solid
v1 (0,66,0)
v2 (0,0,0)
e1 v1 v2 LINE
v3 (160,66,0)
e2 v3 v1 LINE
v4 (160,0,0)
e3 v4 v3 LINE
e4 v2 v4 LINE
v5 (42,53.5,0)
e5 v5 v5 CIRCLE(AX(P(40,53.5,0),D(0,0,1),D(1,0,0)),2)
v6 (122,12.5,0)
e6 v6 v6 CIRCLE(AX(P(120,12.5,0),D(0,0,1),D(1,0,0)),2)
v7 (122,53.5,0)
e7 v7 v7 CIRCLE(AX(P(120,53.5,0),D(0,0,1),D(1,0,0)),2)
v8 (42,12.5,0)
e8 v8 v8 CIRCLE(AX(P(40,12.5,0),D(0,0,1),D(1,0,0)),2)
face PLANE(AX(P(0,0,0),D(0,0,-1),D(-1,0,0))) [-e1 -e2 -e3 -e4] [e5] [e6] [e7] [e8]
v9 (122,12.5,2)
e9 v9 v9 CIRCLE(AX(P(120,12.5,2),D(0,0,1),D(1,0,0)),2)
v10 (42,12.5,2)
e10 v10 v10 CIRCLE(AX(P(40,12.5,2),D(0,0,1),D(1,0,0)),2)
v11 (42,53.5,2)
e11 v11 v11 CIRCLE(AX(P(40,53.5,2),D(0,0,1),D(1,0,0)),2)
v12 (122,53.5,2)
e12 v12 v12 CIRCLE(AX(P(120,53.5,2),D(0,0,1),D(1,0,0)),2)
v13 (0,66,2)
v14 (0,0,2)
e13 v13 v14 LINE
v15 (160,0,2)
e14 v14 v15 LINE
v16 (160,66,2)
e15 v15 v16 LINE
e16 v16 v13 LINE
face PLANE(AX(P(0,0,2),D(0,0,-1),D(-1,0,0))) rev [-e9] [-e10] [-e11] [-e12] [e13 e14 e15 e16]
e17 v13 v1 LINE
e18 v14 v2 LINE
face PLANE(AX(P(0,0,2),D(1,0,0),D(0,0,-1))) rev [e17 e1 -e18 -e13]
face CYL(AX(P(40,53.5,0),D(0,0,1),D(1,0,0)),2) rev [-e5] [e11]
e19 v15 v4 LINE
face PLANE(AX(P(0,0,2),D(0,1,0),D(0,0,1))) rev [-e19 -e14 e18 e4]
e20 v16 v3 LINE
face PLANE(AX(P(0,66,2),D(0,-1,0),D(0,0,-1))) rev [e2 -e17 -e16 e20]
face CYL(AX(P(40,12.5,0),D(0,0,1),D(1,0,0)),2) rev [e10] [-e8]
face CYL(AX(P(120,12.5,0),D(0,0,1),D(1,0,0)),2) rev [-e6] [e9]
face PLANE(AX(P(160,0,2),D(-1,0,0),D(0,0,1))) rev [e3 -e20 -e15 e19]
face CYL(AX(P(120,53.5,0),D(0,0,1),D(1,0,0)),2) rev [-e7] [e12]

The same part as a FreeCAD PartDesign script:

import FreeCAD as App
import Part
import Sketcher


def add_polygon(sketch, points):
    """Adds a closed chain of lines whose ends are joined by coincident constraints."""
    first, n = sketch.GeometryCount, len(points)
    for a, b in zip(points, points[1:] + points[:1]):
        sketch.addGeometry(Part.LineSegment(App.Vector(*a, 0), App.Vector(*b, 0)), False)
    for i in range(n):
        sketch.addConstraint(Sketcher.Constraint("Coincident", first + i, 2, first + (i + 1) % n, 1))

doc = App.newDocument("Part")
body = doc.addObject("PartDesign::Body", "Body")

# Sketch on XY plane
sketch1 = body.newObject("Sketcher::SketchObject", "Sketch")
sketch1.AttachmentSupport = (doc.getObject("XY_Plane"), [""])
sketch1.MapMode = "FlatFace"
add_polygon(sketch1, [(0, 66), (0, 0), (160, 0), (160, 66)])  # lines 0-3
sketch1.addConstraint(Sketcher.Constraint("Vertical", 0))
sketch1.addConstraint(Sketcher.Constraint("Horizontal", 1))
sketch1.addConstraint(Sketcher.Constraint("Vertical", 2))
sketch1.addConstraint(Sketcher.Constraint("Horizontal", 3))
sketch1.addConstraint(Sketcher.Constraint("Coincident", 0, 2, -1, 1))
sketch1.addConstraint(Sketcher.Constraint("DistanceX", 1, 1, 1, 2, 160.0))
sketch1.addConstraint(Sketcher.Constraint("DistanceY", 0, 2, 0, 1, 66.0))
pad1 = body.newObject("PartDesign::Pad", "Pad")
pad1.Profile = sketch1
pad1.Length = 2

# Sketch on XY plane
sketch2 = body.newObject("Sketcher::SketchObject", "Sketch001")
sketch2.AttachmentSupport = (doc.getObject("XY_Plane"), [""])
sketch2.MapMode = "FlatFace"
sketch2.AttachmentOffset = App.Placement(App.Vector(0, 0, 2), App.Rotation())
sketch2.addGeometry(Part.Circle(App.Vector(40, 53.5, 0), App.Vector(0, 0, 1), 2), False)
sketch2.addGeometry(Part.Circle(App.Vector(120, 53.5, 0), App.Vector(0, 0, 1), 2), False)
sketch2.addGeometry(Part.Circle(App.Vector(40, 12.5, 0), App.Vector(0, 0, 1), 2), False)
sketch2.addGeometry(Part.Circle(App.Vector(120, 12.5, 0), App.Vector(0, 0, 1), 2), False)
sketch2.addConstraint(Sketcher.Constraint("Equal", 0, 1))
sketch2.addConstraint(Sketcher.Constraint("Equal", 1, 2))
sketch2.addConstraint(Sketcher.Constraint("Equal", 2, 3))
sketch2.addConstraint(Sketcher.Constraint("Horizontal", 0, 3, 1, 3))
sketch2.addConstraint(Sketcher.Constraint("Horizontal", 2, 3, 3, 3))
sketch2.addConstraint(Sketcher.Constraint("Vertical", 0, 3, 2, 3))
sketch2.addConstraint(Sketcher.Constraint("Vertical", 1, 3, 3, 3))
sketch2.addConstraint(Sketcher.Constraint("Diameter", 0, 4.0))
sketch2.addConstraint(Sketcher.Constraint("DistanceX", -1, 1, 0, 3, 40.0))
sketch2.addConstraint(Sketcher.Constraint("DistanceX", -1, 1, 1, 3, 120.0))
sketch2.addConstraint(Sketcher.Constraint("DistanceY", 2, 3, 0, 3, 41.0))
sketch2.addConstraint(Sketcher.Constraint("DistanceY", -1, 1, 0, 3, 53.5))
pocket1 = body.newObject("PartDesign::Pocket", "Pocket")
pocket1.Profile = sketch2
pocket1.Type = "ThroughAll"

doc.recompute()
